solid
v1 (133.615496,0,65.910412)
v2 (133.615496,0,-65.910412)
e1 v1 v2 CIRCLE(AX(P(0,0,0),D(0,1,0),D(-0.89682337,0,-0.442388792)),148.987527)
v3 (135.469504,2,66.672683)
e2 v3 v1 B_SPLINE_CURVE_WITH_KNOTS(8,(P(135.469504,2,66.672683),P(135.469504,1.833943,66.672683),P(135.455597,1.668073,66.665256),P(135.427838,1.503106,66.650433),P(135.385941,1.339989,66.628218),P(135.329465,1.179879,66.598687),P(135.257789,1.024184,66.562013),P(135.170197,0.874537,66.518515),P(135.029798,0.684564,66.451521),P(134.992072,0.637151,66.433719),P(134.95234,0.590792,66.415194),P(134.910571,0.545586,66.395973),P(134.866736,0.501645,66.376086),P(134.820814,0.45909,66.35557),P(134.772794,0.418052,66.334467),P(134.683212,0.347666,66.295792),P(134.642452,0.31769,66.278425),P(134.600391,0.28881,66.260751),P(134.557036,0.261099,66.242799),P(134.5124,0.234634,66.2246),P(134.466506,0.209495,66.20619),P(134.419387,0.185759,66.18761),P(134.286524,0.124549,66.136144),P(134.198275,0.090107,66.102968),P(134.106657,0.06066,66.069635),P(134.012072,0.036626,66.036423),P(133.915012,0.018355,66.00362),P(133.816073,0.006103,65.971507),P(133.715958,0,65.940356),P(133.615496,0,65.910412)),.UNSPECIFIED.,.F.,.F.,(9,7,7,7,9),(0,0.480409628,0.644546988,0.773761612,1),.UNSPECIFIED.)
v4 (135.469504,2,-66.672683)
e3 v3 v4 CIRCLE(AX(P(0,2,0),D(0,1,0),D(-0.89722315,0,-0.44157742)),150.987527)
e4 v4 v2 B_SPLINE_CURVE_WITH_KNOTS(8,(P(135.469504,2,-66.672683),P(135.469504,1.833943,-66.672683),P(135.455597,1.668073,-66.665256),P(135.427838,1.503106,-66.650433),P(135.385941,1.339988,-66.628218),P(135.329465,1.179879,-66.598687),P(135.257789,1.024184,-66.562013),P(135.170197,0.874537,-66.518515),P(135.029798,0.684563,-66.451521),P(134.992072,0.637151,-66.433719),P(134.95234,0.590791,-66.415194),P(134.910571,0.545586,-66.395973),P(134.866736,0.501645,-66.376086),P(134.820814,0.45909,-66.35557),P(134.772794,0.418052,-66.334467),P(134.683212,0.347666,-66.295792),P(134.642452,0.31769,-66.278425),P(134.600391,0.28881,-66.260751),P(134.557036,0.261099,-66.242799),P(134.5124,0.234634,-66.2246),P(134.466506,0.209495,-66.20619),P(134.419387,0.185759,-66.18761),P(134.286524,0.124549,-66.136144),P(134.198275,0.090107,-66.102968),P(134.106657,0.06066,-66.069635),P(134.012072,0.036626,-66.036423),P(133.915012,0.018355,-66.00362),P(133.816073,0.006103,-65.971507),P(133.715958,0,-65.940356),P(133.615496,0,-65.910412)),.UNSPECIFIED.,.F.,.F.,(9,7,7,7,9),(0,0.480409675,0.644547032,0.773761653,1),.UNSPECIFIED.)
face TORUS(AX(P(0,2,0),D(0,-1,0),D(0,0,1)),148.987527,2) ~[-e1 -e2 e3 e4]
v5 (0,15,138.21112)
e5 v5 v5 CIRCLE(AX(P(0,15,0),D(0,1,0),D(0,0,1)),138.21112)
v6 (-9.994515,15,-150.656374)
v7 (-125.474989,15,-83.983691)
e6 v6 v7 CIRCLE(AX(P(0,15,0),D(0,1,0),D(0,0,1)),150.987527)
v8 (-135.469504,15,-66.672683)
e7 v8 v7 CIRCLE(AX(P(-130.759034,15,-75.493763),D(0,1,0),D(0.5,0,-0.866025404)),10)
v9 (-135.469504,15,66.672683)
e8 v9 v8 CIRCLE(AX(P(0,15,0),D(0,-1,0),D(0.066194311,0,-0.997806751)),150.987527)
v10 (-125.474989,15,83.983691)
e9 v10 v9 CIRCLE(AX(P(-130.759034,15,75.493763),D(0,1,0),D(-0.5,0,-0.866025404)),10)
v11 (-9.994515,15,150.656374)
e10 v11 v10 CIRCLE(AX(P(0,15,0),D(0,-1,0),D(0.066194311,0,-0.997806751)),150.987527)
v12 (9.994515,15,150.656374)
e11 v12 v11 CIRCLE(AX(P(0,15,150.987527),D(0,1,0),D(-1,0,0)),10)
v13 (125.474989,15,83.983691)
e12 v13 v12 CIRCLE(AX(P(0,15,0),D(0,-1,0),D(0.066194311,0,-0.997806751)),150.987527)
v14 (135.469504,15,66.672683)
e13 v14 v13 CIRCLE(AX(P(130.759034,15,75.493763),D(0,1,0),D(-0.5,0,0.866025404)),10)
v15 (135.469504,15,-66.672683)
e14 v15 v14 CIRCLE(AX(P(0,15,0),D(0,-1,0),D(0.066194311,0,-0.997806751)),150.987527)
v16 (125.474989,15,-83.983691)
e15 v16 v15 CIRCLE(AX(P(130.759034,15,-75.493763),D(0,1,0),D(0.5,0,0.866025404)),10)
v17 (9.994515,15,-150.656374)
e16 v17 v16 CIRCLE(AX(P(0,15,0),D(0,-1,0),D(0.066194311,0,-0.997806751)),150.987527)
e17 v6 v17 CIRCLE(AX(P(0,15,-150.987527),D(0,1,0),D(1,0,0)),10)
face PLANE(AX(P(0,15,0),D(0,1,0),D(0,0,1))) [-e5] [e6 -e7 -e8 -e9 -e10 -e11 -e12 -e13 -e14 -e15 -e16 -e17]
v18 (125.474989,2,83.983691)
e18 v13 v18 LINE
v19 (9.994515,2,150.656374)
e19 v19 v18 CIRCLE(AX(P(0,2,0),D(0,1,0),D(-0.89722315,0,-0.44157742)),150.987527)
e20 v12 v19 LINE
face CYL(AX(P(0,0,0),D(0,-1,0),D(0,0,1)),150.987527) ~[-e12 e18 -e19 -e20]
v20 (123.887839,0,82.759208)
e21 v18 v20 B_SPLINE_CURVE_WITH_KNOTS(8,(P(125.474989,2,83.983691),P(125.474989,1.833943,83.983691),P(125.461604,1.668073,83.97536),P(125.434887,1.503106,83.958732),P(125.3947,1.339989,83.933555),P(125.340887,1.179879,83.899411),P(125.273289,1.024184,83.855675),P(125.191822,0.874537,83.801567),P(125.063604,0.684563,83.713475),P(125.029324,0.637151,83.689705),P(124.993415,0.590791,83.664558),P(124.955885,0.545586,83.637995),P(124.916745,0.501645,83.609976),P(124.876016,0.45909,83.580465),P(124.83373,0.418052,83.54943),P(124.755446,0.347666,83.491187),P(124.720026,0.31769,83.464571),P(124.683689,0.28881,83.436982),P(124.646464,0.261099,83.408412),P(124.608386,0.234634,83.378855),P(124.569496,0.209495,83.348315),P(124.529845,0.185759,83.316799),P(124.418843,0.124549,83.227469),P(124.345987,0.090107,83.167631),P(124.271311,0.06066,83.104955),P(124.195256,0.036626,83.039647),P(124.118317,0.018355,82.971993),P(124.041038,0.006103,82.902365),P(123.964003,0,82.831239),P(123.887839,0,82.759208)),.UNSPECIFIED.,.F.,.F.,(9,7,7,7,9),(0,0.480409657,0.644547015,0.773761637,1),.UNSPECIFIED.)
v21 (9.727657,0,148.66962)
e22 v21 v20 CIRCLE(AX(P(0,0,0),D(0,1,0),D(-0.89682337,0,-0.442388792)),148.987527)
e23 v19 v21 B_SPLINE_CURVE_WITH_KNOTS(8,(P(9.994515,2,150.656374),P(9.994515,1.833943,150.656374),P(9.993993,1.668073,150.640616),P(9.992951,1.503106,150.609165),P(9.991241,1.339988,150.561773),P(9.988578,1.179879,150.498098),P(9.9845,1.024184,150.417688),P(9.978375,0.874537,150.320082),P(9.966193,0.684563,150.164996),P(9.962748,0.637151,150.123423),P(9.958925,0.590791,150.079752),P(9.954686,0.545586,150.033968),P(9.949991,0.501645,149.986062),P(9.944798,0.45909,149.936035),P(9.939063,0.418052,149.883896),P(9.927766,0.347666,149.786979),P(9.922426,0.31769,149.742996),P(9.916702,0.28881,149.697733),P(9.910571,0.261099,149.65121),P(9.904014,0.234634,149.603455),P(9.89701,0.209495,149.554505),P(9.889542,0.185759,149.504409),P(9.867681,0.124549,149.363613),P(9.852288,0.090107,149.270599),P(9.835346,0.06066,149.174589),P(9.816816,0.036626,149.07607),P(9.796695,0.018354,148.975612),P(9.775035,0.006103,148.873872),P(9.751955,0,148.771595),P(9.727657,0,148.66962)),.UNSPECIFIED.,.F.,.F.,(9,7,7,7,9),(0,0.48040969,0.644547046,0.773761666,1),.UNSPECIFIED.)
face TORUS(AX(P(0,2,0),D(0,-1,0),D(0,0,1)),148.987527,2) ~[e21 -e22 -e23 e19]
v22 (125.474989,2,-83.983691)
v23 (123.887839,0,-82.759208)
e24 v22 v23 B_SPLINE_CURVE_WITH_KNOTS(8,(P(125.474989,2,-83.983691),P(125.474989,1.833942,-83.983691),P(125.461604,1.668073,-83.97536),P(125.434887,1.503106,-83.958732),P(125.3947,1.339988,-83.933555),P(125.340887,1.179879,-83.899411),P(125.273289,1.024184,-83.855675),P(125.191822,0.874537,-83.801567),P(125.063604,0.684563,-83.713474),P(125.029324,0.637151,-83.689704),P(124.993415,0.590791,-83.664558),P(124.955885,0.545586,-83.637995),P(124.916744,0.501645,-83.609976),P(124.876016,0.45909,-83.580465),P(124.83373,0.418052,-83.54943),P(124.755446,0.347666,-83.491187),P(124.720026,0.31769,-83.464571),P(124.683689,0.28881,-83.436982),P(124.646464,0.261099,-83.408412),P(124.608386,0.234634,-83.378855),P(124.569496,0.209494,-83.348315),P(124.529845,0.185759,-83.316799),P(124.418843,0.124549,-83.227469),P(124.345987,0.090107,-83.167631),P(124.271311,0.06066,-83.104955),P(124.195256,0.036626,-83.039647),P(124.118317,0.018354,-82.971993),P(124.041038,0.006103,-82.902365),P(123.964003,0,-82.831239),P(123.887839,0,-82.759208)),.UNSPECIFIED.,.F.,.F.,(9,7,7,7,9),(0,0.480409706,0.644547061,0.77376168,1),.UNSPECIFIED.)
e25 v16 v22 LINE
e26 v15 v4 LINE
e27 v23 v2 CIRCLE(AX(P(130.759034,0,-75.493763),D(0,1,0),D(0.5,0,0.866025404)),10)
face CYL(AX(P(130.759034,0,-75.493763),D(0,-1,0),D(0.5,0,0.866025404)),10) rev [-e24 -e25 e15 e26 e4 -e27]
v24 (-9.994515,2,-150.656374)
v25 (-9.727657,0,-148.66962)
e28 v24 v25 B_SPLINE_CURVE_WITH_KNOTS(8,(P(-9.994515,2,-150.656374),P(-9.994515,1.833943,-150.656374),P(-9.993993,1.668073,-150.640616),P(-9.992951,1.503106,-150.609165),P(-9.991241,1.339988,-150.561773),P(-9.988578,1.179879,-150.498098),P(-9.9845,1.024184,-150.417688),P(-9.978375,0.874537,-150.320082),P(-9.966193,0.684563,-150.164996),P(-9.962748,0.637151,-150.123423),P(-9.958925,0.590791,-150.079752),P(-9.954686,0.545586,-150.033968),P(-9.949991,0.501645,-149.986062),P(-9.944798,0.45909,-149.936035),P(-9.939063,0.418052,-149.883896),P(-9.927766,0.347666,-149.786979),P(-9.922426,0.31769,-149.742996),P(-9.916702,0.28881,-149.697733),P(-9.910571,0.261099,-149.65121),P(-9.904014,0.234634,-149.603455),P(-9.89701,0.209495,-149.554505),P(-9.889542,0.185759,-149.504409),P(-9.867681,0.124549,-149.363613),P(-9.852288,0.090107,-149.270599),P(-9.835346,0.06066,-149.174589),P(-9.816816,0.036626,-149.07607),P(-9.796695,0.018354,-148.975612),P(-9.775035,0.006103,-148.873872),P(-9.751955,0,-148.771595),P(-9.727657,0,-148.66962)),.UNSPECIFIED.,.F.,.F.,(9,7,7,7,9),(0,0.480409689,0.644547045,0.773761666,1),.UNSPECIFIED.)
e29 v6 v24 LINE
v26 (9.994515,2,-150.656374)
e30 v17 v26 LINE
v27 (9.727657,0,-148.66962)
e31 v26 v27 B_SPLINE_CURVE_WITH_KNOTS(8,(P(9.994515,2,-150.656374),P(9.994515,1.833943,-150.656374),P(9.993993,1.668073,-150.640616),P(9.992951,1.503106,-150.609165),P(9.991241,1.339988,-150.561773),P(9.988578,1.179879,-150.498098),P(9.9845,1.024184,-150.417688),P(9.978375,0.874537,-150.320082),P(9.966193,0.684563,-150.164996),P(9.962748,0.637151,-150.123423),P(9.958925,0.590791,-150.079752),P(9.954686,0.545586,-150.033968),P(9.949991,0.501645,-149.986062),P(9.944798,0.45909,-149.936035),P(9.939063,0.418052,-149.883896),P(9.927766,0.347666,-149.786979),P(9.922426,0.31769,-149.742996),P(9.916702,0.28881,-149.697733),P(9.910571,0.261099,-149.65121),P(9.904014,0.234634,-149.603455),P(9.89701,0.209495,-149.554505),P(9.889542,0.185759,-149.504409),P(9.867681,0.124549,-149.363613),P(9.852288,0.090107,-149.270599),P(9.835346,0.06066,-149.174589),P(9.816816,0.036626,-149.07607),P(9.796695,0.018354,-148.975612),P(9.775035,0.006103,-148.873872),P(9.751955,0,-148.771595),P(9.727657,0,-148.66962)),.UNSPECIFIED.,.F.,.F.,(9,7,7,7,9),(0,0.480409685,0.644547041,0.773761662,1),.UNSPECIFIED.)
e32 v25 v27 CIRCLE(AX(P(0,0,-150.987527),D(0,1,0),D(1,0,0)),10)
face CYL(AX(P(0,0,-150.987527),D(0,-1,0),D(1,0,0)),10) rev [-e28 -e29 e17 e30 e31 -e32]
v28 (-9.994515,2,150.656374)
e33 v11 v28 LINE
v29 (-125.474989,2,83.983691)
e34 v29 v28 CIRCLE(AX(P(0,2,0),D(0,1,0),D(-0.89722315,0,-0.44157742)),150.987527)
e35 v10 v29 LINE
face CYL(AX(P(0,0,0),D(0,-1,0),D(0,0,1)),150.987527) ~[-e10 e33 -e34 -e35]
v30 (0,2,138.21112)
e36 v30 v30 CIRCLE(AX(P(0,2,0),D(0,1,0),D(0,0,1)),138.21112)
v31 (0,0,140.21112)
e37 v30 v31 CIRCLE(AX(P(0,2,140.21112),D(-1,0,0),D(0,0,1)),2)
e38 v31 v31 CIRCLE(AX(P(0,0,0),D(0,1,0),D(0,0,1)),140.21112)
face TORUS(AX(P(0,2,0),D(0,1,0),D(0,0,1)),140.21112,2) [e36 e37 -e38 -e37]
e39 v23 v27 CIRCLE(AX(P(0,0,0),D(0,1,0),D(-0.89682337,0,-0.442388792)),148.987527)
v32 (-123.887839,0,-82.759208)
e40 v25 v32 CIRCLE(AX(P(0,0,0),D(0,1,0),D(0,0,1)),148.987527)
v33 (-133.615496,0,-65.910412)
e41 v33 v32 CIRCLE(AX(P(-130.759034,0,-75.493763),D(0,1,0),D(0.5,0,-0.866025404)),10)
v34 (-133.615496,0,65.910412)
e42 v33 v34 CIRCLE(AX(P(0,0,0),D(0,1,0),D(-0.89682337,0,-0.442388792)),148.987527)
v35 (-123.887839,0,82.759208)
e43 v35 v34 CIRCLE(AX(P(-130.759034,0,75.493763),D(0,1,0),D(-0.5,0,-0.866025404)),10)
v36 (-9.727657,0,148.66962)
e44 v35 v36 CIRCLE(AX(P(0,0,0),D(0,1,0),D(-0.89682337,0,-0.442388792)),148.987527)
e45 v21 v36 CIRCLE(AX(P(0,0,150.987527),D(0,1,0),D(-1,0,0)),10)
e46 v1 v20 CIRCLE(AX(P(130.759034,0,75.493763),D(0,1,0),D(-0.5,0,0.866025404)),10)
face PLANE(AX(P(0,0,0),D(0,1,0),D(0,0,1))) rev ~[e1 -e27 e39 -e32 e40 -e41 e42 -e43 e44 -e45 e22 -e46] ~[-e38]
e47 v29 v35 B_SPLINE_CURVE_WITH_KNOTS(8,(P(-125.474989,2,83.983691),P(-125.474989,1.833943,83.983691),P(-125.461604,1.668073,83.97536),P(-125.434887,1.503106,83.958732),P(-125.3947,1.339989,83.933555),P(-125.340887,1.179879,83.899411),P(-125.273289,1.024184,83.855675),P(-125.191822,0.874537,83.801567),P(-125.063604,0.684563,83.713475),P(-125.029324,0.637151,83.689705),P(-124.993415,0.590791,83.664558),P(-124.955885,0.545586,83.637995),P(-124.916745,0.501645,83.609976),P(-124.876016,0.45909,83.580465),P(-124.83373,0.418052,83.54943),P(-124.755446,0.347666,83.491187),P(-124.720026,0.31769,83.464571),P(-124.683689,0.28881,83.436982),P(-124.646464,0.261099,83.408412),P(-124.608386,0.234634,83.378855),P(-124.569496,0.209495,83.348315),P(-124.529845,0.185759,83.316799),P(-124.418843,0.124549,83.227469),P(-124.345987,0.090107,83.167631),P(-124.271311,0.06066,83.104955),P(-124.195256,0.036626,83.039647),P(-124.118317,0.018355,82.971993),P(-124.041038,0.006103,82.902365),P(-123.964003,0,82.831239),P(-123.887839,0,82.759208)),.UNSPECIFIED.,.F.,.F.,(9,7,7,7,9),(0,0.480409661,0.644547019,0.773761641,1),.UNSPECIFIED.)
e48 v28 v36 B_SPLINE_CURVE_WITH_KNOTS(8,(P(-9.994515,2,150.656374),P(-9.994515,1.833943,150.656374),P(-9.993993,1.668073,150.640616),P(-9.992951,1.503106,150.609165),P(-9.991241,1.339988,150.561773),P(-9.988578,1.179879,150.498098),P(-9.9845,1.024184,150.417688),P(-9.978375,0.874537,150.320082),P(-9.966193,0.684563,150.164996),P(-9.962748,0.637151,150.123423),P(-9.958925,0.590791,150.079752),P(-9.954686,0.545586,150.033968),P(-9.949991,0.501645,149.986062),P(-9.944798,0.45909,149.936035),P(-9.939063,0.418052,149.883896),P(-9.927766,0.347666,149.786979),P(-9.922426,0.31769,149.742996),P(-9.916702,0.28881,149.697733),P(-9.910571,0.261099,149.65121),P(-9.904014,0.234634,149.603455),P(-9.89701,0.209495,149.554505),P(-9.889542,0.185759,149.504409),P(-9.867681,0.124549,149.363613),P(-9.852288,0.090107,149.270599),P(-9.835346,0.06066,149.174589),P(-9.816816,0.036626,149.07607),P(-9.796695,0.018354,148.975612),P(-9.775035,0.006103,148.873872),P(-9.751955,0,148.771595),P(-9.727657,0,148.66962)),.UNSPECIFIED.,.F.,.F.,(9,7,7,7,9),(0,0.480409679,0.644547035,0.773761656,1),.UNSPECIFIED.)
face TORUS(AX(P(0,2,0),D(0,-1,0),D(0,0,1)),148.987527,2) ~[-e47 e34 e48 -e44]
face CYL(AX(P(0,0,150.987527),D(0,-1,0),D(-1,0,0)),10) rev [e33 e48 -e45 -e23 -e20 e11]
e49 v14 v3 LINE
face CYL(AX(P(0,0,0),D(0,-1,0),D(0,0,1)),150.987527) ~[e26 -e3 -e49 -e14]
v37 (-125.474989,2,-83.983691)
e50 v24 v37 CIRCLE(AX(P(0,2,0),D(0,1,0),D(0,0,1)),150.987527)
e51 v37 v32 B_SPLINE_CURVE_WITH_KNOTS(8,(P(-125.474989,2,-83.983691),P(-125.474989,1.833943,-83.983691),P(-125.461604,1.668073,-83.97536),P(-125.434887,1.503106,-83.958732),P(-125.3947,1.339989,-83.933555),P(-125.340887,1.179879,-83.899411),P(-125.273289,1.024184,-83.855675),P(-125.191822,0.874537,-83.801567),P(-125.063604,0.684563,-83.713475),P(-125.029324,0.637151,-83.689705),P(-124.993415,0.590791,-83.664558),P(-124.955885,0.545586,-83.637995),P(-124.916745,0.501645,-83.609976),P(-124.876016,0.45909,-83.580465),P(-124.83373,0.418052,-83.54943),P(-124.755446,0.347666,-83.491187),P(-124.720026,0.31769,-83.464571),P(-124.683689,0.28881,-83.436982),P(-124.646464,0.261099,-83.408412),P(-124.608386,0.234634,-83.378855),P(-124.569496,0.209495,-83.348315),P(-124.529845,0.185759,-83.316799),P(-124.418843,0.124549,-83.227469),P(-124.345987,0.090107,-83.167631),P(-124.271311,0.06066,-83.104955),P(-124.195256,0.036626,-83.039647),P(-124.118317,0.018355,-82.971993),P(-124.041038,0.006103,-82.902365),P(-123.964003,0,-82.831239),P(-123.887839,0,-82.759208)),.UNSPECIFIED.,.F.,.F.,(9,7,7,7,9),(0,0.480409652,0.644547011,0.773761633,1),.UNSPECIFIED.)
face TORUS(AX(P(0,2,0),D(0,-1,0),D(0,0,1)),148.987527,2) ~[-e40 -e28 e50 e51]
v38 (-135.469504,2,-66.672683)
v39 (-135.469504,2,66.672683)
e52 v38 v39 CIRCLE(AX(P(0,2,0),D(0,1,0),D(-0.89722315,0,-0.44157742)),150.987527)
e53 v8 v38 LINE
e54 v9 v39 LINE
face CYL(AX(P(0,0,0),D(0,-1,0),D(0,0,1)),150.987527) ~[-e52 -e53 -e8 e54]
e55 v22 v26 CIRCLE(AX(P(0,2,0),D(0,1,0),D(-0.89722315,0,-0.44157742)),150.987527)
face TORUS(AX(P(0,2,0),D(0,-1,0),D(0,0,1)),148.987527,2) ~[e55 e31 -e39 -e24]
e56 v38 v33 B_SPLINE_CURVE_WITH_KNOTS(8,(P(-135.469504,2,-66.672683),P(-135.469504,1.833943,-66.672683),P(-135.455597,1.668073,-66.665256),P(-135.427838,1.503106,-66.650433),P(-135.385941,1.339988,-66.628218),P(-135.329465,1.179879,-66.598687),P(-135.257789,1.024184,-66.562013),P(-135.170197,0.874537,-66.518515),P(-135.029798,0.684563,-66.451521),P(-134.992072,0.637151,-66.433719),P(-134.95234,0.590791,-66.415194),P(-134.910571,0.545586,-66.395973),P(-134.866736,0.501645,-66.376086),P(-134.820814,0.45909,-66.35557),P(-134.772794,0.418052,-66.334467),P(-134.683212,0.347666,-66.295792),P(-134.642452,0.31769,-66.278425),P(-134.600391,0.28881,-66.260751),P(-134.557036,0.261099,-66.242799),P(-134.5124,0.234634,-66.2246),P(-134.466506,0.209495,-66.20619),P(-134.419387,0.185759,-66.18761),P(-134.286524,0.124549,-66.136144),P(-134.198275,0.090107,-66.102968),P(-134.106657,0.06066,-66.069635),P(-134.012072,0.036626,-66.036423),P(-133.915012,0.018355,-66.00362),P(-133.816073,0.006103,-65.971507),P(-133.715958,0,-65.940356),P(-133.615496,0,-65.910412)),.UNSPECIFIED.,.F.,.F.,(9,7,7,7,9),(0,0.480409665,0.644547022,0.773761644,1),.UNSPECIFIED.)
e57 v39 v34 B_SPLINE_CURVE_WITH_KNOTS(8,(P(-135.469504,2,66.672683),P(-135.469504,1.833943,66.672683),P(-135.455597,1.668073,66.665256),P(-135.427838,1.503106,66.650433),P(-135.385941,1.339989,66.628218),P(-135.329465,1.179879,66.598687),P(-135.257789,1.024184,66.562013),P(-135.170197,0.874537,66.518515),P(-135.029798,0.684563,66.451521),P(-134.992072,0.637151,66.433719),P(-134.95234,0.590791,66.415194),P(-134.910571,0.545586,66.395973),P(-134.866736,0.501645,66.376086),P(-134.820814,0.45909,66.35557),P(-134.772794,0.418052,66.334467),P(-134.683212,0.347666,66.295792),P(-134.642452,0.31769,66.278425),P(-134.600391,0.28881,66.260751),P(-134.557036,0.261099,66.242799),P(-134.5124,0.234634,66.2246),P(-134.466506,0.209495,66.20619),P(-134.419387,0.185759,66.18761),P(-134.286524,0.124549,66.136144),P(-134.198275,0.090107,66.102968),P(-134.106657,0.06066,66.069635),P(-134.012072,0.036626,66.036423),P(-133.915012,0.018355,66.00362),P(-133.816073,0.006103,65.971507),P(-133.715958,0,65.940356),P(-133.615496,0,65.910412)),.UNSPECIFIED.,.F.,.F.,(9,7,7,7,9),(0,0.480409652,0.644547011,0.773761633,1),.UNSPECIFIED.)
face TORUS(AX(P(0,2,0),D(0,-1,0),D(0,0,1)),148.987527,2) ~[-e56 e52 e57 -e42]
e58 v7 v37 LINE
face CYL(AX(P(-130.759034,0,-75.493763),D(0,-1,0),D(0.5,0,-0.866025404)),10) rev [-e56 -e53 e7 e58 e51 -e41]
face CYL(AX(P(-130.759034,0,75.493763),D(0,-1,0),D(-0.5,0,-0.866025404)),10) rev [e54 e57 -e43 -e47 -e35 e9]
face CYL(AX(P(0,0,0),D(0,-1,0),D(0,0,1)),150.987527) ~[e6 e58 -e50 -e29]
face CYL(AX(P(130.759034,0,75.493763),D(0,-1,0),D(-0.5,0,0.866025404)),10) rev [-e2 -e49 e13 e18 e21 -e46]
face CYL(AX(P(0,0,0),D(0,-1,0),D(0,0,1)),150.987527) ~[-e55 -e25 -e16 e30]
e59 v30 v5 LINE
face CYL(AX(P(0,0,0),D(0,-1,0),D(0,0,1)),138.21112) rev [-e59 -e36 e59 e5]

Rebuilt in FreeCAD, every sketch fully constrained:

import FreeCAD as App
import Part
import Sketcher


def edges_at(feature, points):
    """Names of the edges that pass closest to the given points."""
    edges = feature.Shape.Edges
    near = lambda p: min(range(len(edges)), key=lambda i: edges[i].distToShape(Part.Vertex(*p))[0])
    return sorted({f"Edge{near(p) + 1}" for p in points})

doc = App.newDocument("Part")
body = doc.addObject("PartDesign::Body", "Body")

sketch1 = doc.addObject("Sketcher::SketchObject", "Sketch")
body.addObject(sketch1)
sketch1.AttachmentSupport = (doc.XZ_Plane, [""])
sketch1.MapMode = "FlatFace"
sketch1.addGeometry([
    Part.Circle(App.Vector(0, 0, 0), App.Vector(0, 0, 1), 151),
    Part.Circle(App.Vector(0, 0, 0), App.Vector(0, 0, 1), 138),
], False)
sketch1.addConstraint([
    Sketcher.Constraint("Coincident", 0, 3, -1, 1),
    Sketcher.Constraint("Coincident", 1, 3, -1, 1),
    Sketcher.Constraint("Diameter", 1, 276.422239),
    Sketcher.Constraint("Diameter", 0, 301.975054),
])
pad1 = doc.addObject("PartDesign::Pad", "Pad")
body.addObject(pad1)
pad1.Profile = sketch1
pad1.Length = 15
pad1.Reversed = True
doc.recompute()

fillet = doc.addObject("PartDesign::Fillet", "Fillet")
body.addObject(fillet)
fillet.Base = (pad1, edges_at(pad1, [(0, 0, -150.988), (0, 0, -138.211)]))
fillet.Radius = 2

sketch2 = doc.addObject("Sketcher::SketchObject", "Sketch001")
body.addObject(sketch2)
sketch2.AttachmentSupport = (doc.XZ_Plane, [""])
sketch2.MapMode = "FlatFace"
sketch2.addGeometry(Part.Circle(App.Vector(0, -151, 0), App.Vector(0, 0, 1), 10), False)
sketch2.addConstraint([
    Sketcher.Constraint("PointOnObject", 0, 3, -2),
    Sketcher.Constraint("Diameter", 0, 20.0),
    Sketcher.Constraint("DistanceY", 0, 3, -1, 1, 150.987527),
])
pocket1 = doc.addObject("PartDesign::Pocket", "Pocket")
body.addObject(pocket1)
pocket1.Profile = sketch2
pocket1.Length = 15
doc.recompute()

polarpattern = doc.addObject("PartDesign::PolarPattern", "PolarPattern")
body.addObject(polarpattern)
polarpattern.Originals = [pocket1]
polarpattern.Axis = (doc.Y_Axis, [""])
polarpattern.Angle = 360
polarpattern.Occurrences = 6
body.Tip = polarpattern

doc.recompute()
